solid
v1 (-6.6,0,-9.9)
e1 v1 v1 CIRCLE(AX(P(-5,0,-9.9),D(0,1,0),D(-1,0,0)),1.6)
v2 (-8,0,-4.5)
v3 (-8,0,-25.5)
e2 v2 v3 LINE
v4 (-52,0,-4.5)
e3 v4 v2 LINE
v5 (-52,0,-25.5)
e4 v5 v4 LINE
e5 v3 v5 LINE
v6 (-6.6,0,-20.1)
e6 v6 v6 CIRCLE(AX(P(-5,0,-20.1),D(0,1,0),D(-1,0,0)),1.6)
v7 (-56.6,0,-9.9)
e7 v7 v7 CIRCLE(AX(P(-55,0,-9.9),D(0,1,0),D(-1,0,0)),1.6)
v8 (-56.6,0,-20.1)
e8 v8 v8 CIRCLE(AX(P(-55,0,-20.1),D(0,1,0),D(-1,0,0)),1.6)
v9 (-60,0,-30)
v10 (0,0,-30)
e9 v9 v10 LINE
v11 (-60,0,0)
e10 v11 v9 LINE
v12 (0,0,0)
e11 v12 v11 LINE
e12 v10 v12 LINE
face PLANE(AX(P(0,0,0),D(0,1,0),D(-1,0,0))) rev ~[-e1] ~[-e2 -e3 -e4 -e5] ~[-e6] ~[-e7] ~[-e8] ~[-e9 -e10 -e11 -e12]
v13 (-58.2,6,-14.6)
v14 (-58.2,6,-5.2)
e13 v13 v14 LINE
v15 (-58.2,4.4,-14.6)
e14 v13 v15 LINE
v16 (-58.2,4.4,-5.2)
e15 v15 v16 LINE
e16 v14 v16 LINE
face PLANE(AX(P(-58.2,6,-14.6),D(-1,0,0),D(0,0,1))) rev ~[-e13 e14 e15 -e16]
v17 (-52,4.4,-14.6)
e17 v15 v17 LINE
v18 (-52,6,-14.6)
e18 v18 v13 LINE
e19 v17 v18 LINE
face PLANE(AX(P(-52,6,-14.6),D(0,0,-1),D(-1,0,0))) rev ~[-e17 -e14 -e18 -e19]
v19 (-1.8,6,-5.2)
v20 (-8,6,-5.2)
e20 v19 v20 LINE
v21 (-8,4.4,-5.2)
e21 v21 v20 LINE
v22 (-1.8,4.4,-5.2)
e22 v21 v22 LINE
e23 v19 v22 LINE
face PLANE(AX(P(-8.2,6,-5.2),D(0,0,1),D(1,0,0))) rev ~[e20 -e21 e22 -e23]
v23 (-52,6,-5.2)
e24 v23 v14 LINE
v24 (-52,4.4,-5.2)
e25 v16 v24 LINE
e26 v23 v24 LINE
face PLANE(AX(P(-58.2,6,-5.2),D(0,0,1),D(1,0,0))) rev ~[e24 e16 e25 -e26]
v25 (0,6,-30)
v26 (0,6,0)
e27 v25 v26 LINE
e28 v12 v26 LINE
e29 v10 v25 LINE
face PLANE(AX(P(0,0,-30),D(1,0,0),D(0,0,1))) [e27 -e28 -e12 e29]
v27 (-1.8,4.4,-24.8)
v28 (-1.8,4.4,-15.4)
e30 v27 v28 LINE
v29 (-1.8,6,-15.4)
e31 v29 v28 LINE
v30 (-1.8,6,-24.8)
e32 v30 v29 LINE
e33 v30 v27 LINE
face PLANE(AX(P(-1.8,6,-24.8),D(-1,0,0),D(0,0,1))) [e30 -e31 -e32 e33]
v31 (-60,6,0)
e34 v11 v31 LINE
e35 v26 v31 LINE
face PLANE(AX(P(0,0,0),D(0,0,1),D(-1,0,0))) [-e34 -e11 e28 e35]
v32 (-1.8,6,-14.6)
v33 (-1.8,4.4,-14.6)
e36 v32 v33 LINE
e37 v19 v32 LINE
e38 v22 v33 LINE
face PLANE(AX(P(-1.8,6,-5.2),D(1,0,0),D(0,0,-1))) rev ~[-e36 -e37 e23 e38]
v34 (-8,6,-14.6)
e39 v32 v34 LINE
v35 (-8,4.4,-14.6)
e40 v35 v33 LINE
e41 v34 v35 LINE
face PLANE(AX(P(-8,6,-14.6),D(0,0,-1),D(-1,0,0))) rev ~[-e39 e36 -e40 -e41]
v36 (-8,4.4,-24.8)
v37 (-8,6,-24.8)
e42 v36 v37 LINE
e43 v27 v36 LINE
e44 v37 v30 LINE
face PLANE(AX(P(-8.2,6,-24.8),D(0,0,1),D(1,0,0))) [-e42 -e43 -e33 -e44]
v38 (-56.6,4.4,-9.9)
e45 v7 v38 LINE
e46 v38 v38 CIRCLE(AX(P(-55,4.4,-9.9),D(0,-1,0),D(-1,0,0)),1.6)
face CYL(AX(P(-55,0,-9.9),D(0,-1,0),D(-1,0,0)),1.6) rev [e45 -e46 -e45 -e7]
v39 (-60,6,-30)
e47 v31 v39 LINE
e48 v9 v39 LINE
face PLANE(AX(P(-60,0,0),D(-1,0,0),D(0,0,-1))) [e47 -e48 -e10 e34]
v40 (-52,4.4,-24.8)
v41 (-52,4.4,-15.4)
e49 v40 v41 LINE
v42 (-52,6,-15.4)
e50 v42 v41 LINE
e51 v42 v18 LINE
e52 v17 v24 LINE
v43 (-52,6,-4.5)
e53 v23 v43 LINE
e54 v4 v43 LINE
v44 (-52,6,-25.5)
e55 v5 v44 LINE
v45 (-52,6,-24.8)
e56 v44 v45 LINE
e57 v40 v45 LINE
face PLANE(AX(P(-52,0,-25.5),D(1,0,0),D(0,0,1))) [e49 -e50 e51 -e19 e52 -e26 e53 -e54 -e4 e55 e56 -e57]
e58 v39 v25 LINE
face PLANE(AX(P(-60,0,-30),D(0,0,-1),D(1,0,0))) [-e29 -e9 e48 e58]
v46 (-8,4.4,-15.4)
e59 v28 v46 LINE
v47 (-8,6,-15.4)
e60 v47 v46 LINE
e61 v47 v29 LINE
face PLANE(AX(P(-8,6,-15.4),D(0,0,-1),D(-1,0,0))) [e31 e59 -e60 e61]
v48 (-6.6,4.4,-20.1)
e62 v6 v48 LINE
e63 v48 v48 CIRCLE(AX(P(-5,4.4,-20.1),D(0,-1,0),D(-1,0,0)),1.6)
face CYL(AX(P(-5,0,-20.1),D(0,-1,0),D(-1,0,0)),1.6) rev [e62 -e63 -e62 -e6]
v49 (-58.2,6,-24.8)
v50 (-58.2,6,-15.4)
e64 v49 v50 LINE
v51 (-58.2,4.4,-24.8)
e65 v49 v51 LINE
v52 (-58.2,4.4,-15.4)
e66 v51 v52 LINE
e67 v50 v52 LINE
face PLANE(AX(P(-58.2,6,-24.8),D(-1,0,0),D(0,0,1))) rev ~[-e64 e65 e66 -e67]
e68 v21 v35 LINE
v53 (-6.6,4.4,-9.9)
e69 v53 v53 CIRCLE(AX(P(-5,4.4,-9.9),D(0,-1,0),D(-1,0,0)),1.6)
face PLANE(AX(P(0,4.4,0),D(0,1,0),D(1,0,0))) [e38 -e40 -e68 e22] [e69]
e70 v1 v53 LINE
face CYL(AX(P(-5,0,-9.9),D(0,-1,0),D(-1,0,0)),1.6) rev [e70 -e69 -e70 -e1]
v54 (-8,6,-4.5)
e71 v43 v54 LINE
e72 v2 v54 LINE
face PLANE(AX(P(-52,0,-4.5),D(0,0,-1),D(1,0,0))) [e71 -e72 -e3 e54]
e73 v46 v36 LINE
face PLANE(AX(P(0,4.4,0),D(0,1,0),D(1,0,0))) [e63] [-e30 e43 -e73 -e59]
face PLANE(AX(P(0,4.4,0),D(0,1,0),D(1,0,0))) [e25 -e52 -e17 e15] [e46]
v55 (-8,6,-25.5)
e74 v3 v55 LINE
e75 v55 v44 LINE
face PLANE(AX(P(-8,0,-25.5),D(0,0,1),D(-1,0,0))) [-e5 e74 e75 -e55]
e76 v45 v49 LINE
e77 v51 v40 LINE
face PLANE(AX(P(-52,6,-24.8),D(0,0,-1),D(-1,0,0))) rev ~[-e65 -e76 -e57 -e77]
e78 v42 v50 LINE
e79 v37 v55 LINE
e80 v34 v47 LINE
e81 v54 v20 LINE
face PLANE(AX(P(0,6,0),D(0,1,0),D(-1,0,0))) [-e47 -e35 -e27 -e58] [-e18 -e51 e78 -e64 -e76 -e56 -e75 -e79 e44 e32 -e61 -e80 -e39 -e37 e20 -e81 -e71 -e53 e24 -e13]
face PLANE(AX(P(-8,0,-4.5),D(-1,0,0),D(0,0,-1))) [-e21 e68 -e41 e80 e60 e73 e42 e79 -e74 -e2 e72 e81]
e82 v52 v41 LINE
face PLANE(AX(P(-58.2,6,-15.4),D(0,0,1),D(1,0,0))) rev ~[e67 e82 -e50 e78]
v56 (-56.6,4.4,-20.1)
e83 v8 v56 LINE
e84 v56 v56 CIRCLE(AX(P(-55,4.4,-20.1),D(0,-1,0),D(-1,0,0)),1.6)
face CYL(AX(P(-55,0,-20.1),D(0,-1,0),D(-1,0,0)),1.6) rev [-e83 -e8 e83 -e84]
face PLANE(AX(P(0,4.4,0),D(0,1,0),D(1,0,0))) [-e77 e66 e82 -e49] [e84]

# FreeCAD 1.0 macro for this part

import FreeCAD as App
import Part
import Sketcher

V = App.Vector

doc = App.newDocument("Part")
body = doc.addObject("PartDesign::Body", "Body")

# Sketch on XZ plane
sketch1 = body.newObject("Sketcher::SketchObject", "Sketch")
sketch1.AttachmentSupport = (doc.getObject("XZ_Plane"), [""])
sketch1.MapMode = "FlatFace"
sketch1.addGeometry(Part.LineSegment(V(-60, 0, 0), V(0, 0, 0)), False)
sketch1.addGeometry(Part.LineSegment(V(0, 0, 0), V(0, -30, 0)), False)
sketch1.addGeometry(Part.LineSegment(V(0, -30, 0), V(-60, -30, 0)), False)
sketch1.addGeometry(Part.LineSegment(V(-60, -30, 0), V(-60, 0, 0)), False)
sketch1.addGeometry(Part.Circle(V(-5, -20.1, 0), V(0, 0, 1), 1.6), False)
sketch1.addGeometry(Part.Circle(V(-55, -20.1, 0), V(0, 0, 1), 1.6), False)
sketch1.addGeometry(Part.Circle(V(-5, -9.9, 0), V(0, 0, 1), 1.6), False)
sketch1.addGeometry(Part.LineSegment(V(-8, -4.5, 0), V(-52, -4.5, 0)), False)
sketch1.addGeometry(Part.LineSegment(V(-52, -4.5, 0), V(-52, -25.5, 0)), False)
sketch1.addGeometry(Part.LineSegment(V(-52, -25.5, 0), V(-8, -25.5, 0)), False)
sketch1.addGeometry(Part.LineSegment(V(-8, -25.5, 0), V(-8, -4.5, 0)), False)
sketch1.addGeometry(Part.Circle(V(-55, -9.9, 0), V(0, 0, 1), 1.6), False)
sketch1.addConstraint(Sketcher.Constraint("Coincident", 0, 2, 1, 1))
sketch1.addConstraint(Sketcher.Constraint("Coincident", 1, 2, 2, 1))
sketch1.addConstraint(Sketcher.Constraint("Coincident", 2, 2, 3, 1))
sketch1.addConstraint(Sketcher.Constraint("Coincident", 3, 2, 0, 1))
sketch1.addConstraint(Sketcher.Constraint("Coincident", 7, 2, 8, 1))
sketch1.addConstraint(Sketcher.Constraint("Coincident", 8, 2, 9, 1))
sketch1.addConstraint(Sketcher.Constraint("Coincident", 9, 2, 10, 1))
sketch1.addConstraint(Sketcher.Constraint("Coincident", 10, 2, 7, 1))
sketch1.addConstraint(Sketcher.Constraint("Horizontal", 0))
sketch1.addConstraint(Sketcher.Constraint("Vertical", 1))
sketch1.addConstraint(Sketcher.Constraint("Horizontal", 2))
sketch1.addConstraint(Sketcher.Constraint("Vertical", 3))
sketch1.addConstraint(Sketcher.Constraint("Horizontal", 7))
sketch1.addConstraint(Sketcher.Constraint("Vertical", 8))
sketch1.addConstraint(Sketcher.Constraint("Horizontal", 9))
sketch1.addConstraint(Sketcher.Constraint("Vertical", 10))
sketch1.addConstraint(Sketcher.Constraint("Coincident", 0, 2, -1, 1))
sketch1.addConstraint(Sketcher.Constraint("Equal", 4, 5))
sketch1.addConstraint(Sketcher.Constraint("Equal", 5, 6))
sketch1.addConstraint(Sketcher.Constraint("Equal", 6, 11))
sketch1.addConstraint(Sketcher.Constraint("Horizontal", 4, 3, 5, 3))
sketch1.addConstraint(Sketcher.Constraint("Horizontal", 6, 3, 11, 3))
sketch1.addConstraint(Sketcher.Constraint("Vertical", 4, 3, 6, 3))
sketch1.addConstraint(Sketcher.Constraint("Vertical", 5, 3, 11, 3))
sketch1.addConstraint(Sketcher.Constraint("Diameter", 4, 3.2))
sketch1.addConstraint(Sketcher.Constraint("DistanceX", 0, 1, 0, 2, 60.0))
sketch1.addConstraint(Sketcher.Constraint("DistanceX", 7, 2, 7, 1, 44.0))
sketch1.addConstraint(Sketcher.Constraint("DistanceY", 1, 2, 1, 1, 30.0))
sketch1.addConstraint(Sketcher.Constraint("DistanceY", 8, 2, 8, 1, 21.0))
sketch1.addConstraint(Sketcher.Constraint("DistanceX", 9, 2, -1, 1, 8.0))
sketch1.addConstraint(Sketcher.Constraint("DistanceX", 11, 3, 7, 2, 3.0))
sketch1.addConstraint(Sketcher.Constraint("DistanceX", 9, 2, 4, 3, 3.0))
sketch1.addConstraint(Sketcher.Constraint("DistanceY", 7, 2, -1, 1, 4.5))
sketch1.addConstraint(Sketcher.Constraint("DistanceY", 11, 3, 7, 2, 5.4))
sketch1.addConstraint(Sketcher.Constraint("DistanceY", 8, 2, 5, 3, 5.4))
pad1 = body.newObject("PartDesign::Pad", "Pad")
pad1.Profile = sketch1
pad1.Length = 6
pad1.Reversed = True

# Sketch on XZ plane
sketch2 = body.newObject("Sketcher::SketchObject", "Sketch001")
sketch2.AttachmentSupport = (doc.getObject("XZ_Plane"), [""])
sketch2.MapMode = "FlatFace"
sketch2.AttachmentOffset = App.Placement(V(0, 0, -6), App.Rotation())
sketch2.addGeometry(Part.LineSegment(V(-8.2, -24.8, 0), V(-8.2, -15.4, 0)), False)
sketch2.addGeometry(Part.LineSegment(V(-8.2, -15.4, 0), V(-1.8, -15.4, 0)), False)
sketch2.addGeometry(Part.LineSegment(V(-1.8, -15.4, 0), V(-1.8, -24.8, 0)), False)
sketch2.addGeometry(Part.LineSegment(V(-1.8, -24.8, 0), V(-8.2, -24.8, 0)), False)
sketch2.addGeometry(Part.LineSegment(V(-8.2, -5.2, 0), V(-1.8, -5.2, 0)), False)
sketch2.addGeometry(Part.LineSegment(V(-1.8, -5.2, 0), V(-1.8, -14.6, 0)), False)
sketch2.addGeometry(Part.LineSegment(V(-1.8, -14.6, 0), V(-8.2, -14.6, 0)), False)
sketch2.addGeometry(Part.LineSegment(V(-8.2, -14.6, 0), V(-8.2, -5.2, 0)), False)
sketch2.addGeometry(Part.LineSegment(V(-58.2, -15.4, 0), V(-51.8, -15.4, 0)), False)
sketch2.addGeometry(Part.LineSegment(V(-51.8, -15.4, 0), V(-51.8, -24.8, 0)), False)
sketch2.addGeometry(Part.LineSegment(V(-51.8, -24.8, 0), V(-58.2, -24.8, 0)), False)
sketch2.addGeometry(Part.LineSegment(V(-58.2, -24.8, 0), V(-58.2, -15.4, 0)), False)
sketch2.addGeometry(Part.LineSegment(V(-58.2, -5.2, 0), V(-51.8, -5.2, 0)), False)
sketch2.addGeometry(Part.LineSegment(V(-51.8, -5.2, 0), V(-51.8, -14.6, 0)), False)
sketch2.addGeometry(Part.LineSegment(V(-51.8, -14.6, 0), V(-58.2, -14.6, 0)), False)
sketch2.addGeometry(Part.LineSegment(V(-58.2, -14.6, 0), V(-58.2, -5.2, 0)), False)
sketch2.addConstraint(Sketcher.Constraint("Coincident", 0, 2, 1, 1))
sketch2.addConstraint(Sketcher.Constraint("Coincident", 1, 2, 2, 1))
sketch2.addConstraint(Sketcher.Constraint("Coincident", 2, 2, 3, 1))
sketch2.addConstraint(Sketcher.Constraint("Coincident", 3, 2, 0, 1))
sketch2.addConstraint(Sketcher.Constraint("Coincident", 4, 2, 5, 1))
sketch2.addConstraint(Sketcher.Constraint("Coincident", 5, 2, 6, 1))
sketch2.addConstraint(Sketcher.Constraint("Coincident", 6, 2, 7, 1))
sketch2.addConstraint(Sketcher.Constraint("Coincident", 7, 2, 4, 1))
sketch2.addConstraint(Sketcher.Constraint("Coincident", 8, 2, 9, 1))
sketch2.addConstraint(Sketcher.Constraint("Coincident", 9, 2, 10, 1))
sketch2.addConstraint(Sketcher.Constraint("Coincident", 10, 2, 11, 1))
sketch2.addConstraint(Sketcher.Constraint("Coincident", 11, 2, 8, 1))
sketch2.addConstraint(Sketcher.Constraint("Coincident", 12, 2, 13, 1))
sketch2.addConstraint(Sketcher.Constraint("Coincident", 13, 2, 14, 1))
sketch2.addConstraint(Sketcher.Constraint("Coincident", 14, 2, 15, 1))
sketch2.addConstraint(Sketcher.Constraint("Coincident", 15, 2, 12, 1))
sketch2.addConstraint(Sketcher.Constraint("Vertical", 0))
sketch2.addConstraint(Sketcher.Constraint("Horizontal", 1))
sketch2.addConstraint(Sketcher.Constraint("Vertical", 2))
sketch2.addConstraint(Sketcher.Constraint("Horizontal", 3))
sketch2.addConstraint(Sketcher.Constraint("Horizontal", 4))
sketch2.addConstraint(Sketcher.Constraint("Vertical", 5))
sketch2.addConstraint(Sketcher.Constraint("Horizontal", 6))
sketch2.addConstraint(Sketcher.Constraint("Vertical", 7))
sketch2.addConstraint(Sketcher.Constraint("Horizontal", 8))
sketch2.addConstraint(Sketcher.Constraint("Vertical", 9))
sketch2.addConstraint(Sketcher.Constraint("Horizontal", 10))
sketch2.addConstraint(Sketcher.Constraint("Vertical", 11))
sketch2.addConstraint(Sketcher.Constraint("Horizontal", 12))
sketch2.addConstraint(Sketcher.Constraint("Vertical", 13))
sketch2.addConstraint(Sketcher.Constraint("Horizontal", 14))
sketch2.addConstraint(Sketcher.Constraint("Vertical", 15))
sketch2.addConstraint(Sketcher.Constraint("Horizontal", 1, 2, 8, 2))
sketch2.addConstraint(Sketcher.Constraint("Horizontal", 3, 2, 9, 2))
sketch2.addConstraint(Sketcher.Constraint("Horizontal", 7, 2, 12, 2))
sketch2.addConstraint(Sketcher.Constraint("Horizontal", 6, 2, 13, 2))
sketch2.addConstraint(Sketcher.Constraint("Vertical", 2, 2, 4, 2))
sketch2.addConstraint(Sketcher.Constraint("Vertical", 3, 2, 6, 2))
sketch2.addConstraint(Sketcher.Constraint("Vertical", 9, 2, 12, 2))
sketch2.addConstraint(Sketcher.Constraint("Vertical", 11, 2, 14, 2))
sketch2.addConstraint(Sketcher.Constraint("Equal", 6, 8))
sketch2.addConstraint(Sketcher.Constraint("Equal", 2, 5))
sketch2.addConstraint(Sketcher.Constraint("DistanceX", 1, 1, 1, 2, 6.4))
sketch2.addConstraint(Sketcher.Constraint("DistanceY", 0, 1, 0, 2, 9.4))
sketch2.addConstraint(Sketcher.Constraint("DistanceX", 8, 2, 1, 2, 50.0))
sketch2.addConstraint(Sketcher.Constraint("DistanceX", 0, 2, -1, 1, 8.2))
sketch2.addConstraint(Sketcher.Constraint("DistanceY", 0, 2, -1, 1, 15.4))
sketch2.addConstraint(Sketcher.Constraint("DistanceY", 4, 2, -1, 1, 5.2))
pocket1 = body.newObject("PartDesign::Pocket", "Pocket")
pocket1.Profile = sketch2
pocket1.Length = 1.6
pocket1.Reversed = True

doc.recompute()
